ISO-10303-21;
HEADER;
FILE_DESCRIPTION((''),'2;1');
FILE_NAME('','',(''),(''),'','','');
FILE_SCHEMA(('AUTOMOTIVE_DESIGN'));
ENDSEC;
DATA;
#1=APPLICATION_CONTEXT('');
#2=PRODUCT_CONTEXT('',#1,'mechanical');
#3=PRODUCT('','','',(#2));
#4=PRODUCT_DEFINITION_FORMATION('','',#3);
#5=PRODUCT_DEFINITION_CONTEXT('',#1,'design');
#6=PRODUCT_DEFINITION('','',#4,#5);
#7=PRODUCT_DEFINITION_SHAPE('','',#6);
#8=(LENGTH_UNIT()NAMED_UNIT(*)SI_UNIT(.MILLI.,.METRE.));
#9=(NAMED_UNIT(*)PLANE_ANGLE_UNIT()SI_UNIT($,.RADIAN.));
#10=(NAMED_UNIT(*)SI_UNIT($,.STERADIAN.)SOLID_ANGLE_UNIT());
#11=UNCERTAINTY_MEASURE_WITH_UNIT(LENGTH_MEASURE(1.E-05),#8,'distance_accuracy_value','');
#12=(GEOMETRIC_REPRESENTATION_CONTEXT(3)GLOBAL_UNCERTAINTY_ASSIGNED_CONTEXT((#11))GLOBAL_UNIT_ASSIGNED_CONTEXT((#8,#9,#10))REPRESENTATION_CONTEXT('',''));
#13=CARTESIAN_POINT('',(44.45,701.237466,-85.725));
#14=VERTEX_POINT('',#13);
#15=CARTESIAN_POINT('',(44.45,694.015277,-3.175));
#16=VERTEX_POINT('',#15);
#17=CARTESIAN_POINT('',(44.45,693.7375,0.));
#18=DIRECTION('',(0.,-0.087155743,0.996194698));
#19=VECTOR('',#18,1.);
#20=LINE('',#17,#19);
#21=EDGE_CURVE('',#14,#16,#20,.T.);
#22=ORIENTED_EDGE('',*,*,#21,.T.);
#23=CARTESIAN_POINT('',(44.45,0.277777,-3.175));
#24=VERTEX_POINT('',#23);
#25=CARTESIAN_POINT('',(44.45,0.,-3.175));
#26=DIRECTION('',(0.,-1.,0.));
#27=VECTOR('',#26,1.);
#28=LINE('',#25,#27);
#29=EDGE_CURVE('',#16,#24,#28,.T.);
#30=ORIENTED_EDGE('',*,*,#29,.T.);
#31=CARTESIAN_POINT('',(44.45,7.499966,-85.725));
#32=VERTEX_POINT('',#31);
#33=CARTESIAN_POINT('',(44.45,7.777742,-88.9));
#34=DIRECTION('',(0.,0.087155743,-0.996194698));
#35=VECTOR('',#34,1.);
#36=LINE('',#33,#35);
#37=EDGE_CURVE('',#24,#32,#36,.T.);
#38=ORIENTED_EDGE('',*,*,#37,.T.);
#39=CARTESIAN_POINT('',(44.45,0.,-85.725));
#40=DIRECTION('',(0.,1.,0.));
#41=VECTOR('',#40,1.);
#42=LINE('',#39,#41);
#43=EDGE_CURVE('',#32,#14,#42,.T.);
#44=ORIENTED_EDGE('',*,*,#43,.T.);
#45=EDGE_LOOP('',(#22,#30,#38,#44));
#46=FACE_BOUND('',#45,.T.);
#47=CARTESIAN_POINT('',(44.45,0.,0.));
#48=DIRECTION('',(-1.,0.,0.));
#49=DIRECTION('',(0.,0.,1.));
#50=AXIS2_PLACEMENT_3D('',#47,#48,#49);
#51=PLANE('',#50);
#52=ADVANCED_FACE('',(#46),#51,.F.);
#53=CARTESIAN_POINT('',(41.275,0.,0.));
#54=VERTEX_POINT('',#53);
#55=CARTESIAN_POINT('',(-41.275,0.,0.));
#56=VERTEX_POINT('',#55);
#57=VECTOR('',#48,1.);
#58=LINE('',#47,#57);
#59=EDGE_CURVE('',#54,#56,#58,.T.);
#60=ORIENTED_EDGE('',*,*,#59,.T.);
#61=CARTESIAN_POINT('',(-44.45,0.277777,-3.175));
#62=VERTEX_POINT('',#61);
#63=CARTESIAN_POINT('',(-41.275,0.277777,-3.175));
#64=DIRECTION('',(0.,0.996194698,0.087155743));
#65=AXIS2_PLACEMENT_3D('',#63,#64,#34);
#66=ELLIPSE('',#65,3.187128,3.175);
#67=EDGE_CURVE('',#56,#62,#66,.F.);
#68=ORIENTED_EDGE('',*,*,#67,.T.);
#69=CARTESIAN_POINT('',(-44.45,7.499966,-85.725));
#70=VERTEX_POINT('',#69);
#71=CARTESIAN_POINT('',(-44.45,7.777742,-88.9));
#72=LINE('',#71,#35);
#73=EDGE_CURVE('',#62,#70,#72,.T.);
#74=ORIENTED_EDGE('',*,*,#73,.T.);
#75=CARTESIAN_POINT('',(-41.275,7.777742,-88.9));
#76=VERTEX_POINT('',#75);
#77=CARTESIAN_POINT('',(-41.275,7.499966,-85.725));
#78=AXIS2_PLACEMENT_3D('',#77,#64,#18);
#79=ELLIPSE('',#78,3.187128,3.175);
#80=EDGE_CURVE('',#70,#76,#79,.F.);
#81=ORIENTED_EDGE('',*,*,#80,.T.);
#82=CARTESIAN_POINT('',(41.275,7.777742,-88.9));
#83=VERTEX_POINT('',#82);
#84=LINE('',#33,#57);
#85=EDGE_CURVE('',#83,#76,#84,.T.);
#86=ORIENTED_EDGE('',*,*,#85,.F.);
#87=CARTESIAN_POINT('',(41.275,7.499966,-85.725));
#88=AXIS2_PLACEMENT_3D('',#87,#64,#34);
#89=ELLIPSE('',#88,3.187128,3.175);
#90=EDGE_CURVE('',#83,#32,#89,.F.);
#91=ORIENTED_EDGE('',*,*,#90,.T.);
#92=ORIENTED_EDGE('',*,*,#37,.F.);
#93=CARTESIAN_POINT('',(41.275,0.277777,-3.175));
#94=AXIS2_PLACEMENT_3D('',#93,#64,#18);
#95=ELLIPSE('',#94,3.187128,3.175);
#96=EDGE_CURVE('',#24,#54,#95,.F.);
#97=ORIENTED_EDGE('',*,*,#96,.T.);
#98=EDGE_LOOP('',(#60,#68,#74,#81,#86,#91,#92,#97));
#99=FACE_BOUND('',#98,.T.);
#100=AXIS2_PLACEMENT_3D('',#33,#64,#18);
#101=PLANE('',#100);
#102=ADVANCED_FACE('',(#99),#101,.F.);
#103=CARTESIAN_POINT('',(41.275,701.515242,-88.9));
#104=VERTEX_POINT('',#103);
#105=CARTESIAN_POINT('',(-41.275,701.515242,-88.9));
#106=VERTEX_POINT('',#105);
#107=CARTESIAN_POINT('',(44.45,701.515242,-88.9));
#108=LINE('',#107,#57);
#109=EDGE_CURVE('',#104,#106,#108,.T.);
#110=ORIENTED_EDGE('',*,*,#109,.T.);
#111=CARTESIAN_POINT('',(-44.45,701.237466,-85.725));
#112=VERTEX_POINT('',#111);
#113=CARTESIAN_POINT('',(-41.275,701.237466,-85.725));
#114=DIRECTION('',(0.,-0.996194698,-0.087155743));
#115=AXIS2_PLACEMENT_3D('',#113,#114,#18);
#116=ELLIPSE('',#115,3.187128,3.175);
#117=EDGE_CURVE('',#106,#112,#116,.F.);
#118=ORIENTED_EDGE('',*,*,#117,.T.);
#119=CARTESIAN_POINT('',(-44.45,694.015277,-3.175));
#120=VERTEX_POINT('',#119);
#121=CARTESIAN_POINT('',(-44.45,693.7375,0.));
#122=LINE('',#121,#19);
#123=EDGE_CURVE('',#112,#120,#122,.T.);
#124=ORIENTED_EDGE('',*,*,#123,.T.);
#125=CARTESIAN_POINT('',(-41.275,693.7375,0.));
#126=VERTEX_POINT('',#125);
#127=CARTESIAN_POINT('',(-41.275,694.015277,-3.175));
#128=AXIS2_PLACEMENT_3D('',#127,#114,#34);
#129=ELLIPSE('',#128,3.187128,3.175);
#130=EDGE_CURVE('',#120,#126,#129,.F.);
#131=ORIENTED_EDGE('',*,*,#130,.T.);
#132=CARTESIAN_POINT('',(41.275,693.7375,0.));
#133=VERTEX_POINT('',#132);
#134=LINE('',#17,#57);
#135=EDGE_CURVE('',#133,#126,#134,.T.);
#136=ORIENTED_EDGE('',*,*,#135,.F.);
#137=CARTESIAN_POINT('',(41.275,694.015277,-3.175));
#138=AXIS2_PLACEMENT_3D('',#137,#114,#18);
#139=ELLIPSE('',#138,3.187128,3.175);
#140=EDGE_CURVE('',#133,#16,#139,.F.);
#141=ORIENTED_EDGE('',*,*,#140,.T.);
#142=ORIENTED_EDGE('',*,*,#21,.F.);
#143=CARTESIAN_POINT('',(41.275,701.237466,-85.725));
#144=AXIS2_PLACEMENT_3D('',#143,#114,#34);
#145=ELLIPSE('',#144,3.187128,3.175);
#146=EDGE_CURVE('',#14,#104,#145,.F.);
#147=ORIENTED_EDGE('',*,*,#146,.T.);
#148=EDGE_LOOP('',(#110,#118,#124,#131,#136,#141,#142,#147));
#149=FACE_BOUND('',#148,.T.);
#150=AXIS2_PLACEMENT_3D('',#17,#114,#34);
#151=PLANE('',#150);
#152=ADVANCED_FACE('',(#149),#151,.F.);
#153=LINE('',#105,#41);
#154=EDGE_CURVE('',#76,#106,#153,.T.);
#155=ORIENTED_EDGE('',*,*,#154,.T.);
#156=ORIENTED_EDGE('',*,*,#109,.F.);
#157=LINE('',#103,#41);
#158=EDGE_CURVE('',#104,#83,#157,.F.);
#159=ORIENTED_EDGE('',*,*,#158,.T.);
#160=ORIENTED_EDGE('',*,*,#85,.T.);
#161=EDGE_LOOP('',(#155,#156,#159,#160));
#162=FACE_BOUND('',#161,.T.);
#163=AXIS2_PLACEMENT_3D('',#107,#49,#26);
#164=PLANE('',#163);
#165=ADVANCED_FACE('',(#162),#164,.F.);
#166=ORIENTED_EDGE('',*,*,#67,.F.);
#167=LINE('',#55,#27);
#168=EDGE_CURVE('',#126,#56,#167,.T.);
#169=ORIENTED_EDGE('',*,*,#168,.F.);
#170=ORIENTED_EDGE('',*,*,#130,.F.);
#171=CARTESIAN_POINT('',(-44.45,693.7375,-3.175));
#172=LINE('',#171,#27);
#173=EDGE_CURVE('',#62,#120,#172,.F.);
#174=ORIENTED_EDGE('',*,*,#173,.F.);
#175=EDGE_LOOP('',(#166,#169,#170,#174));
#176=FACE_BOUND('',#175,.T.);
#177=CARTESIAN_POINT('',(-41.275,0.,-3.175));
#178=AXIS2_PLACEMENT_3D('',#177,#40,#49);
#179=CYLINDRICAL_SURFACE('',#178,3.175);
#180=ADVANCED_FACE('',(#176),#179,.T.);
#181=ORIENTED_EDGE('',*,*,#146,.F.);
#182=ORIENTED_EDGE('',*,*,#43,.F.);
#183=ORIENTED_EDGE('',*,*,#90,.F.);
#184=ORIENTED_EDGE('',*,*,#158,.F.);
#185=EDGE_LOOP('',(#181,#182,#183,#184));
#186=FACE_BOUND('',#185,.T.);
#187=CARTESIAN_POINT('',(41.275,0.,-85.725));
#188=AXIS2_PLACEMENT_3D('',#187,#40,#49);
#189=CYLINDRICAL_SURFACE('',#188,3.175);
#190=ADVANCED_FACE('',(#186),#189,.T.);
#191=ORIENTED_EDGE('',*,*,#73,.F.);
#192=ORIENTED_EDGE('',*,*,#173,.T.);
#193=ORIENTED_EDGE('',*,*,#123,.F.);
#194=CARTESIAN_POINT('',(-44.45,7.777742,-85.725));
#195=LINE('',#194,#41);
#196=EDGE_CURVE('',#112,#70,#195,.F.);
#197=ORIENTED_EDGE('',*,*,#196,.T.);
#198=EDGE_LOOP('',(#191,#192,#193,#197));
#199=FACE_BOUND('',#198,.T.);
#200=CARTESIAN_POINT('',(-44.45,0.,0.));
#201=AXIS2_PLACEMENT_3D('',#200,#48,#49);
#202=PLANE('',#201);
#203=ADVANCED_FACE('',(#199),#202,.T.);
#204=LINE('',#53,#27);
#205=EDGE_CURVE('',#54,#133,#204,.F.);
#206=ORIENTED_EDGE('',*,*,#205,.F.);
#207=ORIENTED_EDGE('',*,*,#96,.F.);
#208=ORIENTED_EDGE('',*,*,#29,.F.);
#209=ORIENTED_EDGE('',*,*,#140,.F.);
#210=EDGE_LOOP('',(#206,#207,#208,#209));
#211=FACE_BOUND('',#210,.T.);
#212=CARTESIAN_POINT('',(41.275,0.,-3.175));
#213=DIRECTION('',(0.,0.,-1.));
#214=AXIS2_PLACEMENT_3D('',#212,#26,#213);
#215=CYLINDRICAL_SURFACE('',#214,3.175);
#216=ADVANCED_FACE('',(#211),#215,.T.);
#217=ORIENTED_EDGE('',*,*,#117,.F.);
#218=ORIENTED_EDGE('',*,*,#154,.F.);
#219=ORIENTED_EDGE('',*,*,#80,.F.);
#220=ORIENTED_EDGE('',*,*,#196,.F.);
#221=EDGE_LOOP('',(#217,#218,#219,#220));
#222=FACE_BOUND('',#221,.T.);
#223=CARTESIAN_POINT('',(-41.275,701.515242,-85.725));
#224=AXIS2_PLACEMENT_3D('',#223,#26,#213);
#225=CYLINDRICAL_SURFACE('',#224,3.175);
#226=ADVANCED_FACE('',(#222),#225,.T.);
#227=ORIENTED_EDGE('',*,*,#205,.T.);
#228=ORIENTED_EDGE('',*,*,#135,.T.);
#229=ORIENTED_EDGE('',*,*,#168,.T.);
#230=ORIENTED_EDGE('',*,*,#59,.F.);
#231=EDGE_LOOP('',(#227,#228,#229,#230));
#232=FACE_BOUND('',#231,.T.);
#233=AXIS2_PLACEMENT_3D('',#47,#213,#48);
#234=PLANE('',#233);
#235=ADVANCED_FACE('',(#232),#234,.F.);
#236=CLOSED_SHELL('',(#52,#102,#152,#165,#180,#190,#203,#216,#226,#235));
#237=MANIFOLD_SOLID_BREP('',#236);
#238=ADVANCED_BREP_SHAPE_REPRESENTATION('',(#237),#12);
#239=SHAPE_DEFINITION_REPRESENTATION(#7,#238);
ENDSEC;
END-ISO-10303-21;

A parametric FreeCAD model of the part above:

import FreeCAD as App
import Part
import Sketcher

V = App.Vector
Q = App.Units.Quantity


def edges_at(feature, points):
    """Names of the edges that pass closest to the given points."""
    edges = feature.Shape.Edges
    near = lambda p: min(range(len(edges)), key=lambda i: edges[i].distToShape(Part.Vertex(*p))[0])
    return sorted({f"Edge{near(p) + 1}" for p in points})


def add_polygon(sketch, points):
    """Adds a closed chain of lines whose ends are joined by coincident constraints."""
    first, n = sketch.GeometryCount, len(points)
    for a, b in zip(points, points[1:] + points[:1]):
        sketch.addGeometry(Part.LineSegment(App.Vector(*a, 0), App.Vector(*b, 0)), False)
    for i in range(n):
        sketch.addConstraint(Sketcher.Constraint("Coincident", first + i, 2, first + (i + 1) % n, 1))

doc = App.newDocument("Part")
body = doc.addObject("PartDesign::Body", "Body")

# Sketch on YZ plane
sketch1 = body.newObject("Sketcher::SketchObject", "Sketch")
sketch1.AttachmentSupport = (doc.getObject("YZ_Plane"), [""])
sketch1.MapMode = "FlatFace"
add_polygon(sketch1, [(694, 0), (0, 0), (8, -89), (702, -89)])  # lines 0-3
sketch1.addConstraint([
    Sketcher.Constraint("Horizontal", 0),
    Sketcher.Constraint("Horizontal", 2),
    Sketcher.Constraint("Coincident", 0, 2, -1, 1),
    Sketcher.Constraint("Parallel", 1, 3),
    Sketcher.Constraint("Angle", 1, Q("-85 deg")),
    Sketcher.Constraint("DistanceY", 1, 2, -1, 1, Q("3.5 in")),
    Sketcher.Constraint("DistanceX", 0, 2, 0, 1, Q("27.3125 in")),
])
pad1 = body.newObject("PartDesign::Pad", "Pad")
pad1.Profile = sketch1
pad1.Length = Q("3.5 in")
pad1.Midplane = True
doc.recompute()

fillet = body.newObject("PartDesign::Fillet", "Fillet")
fillet.Base = (pad1, edges_at(pad1, [
    (44.45, 346.869, 0),
    (-44.45, 346.869, 0),
    (-44.45, 354.646, -88.9),
    (44.45, 354.646, -88.9),
]))
fillet.Radius = Q("0.125 in")

doc.recompute()
